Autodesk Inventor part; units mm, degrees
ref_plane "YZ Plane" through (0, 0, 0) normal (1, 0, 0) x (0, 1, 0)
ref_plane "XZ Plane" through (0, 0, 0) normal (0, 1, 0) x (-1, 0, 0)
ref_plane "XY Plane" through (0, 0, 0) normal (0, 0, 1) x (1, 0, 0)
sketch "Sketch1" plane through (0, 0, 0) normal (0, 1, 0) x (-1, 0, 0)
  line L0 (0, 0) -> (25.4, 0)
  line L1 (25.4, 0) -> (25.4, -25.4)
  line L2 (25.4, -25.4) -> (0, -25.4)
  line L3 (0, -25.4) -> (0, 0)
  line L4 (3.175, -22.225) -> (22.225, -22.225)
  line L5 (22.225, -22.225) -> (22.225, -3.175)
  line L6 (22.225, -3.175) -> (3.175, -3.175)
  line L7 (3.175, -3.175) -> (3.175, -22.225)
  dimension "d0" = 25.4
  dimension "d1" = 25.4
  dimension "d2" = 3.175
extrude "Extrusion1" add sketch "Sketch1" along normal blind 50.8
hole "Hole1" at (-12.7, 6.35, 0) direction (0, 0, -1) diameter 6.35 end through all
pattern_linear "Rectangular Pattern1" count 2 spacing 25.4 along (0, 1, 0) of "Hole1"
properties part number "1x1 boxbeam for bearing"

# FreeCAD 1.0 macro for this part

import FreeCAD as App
import Part
import Sketcher
from FreeCAD import Vector
Q = App.Units.Quantity


def add_polygon(sketch, points):
    """Adds a closed chain of lines whose ends are joined by coincident constraints."""
    first, n = sketch.GeometryCount, len(points)
    for a, b in zip(points, points[1:] + points[:1]):
        sketch.addGeometry(Part.LineSegment(App.Vector(*a, 0), App.Vector(*b, 0)), False)
    for i in range(n):
        sketch.addConstraint(Sketcher.Constraint("Coincident", first + i, 2, first + (i + 1) % n, 1))

doc = App.newDocument("Part")
body = doc.addObject("PartDesign::Body", "Body")

# Sketch on XZ plane
sketch1 = body.newObject("Sketcher::SketchObject", "Sketch")
sketch1.AttachmentSupport = (doc.getObject("XZ_Plane"), [""])
sketch1.MapMode = "FlatFace"
add_polygon(sketch1, [(-25, 0), (0, 0), (0, -25), (-25, -25)])  # lines 0-3
add_polygon(sketch1, [(-22, -22), (-3, -22), (-3, -3), (-22, -3)])  # lines 4-7
sketch1.addConstraint([
    Sketcher.Constraint("Horizontal", 0),
    Sketcher.Constraint("Vertical", 1),
    Sketcher.Constraint("Horizontal", 2),
    Sketcher.Constraint("Vertical", 3),
    Sketcher.Constraint("Horizontal", 4),
    Sketcher.Constraint("Vertical", 5),
    Sketcher.Constraint("Horizontal", 6),
    Sketcher.Constraint("Vertical", 7),
    Sketcher.Constraint("Coincident", 0, 2, -1, 1),
    Sketcher.Constraint("Equal", 2, 1),
    Sketcher.Constraint("Equal", 6, 5),
    Sketcher.Constraint("DistanceX", 0, 1, 0, 2, Q("1 in")),
    Sketcher.Constraint("DistanceX", 4, 2, -1, 1, Q("0.125 in")),
    Sketcher.Constraint("DistanceY", 5, 2, -1, 1, Q("0.125 in")),
    Sketcher.Constraint("DistanceY", 1, 2, 4, 2, Q("0.125 in")),
])
pad1 = body.newObject("PartDesign::Pad", "Pad")
pad1.Profile = sketch1
pad1.Length = Q("2 in")
pad1.Reversed = True

# Sketch on XY plane
sketch2 = body.newObject("Sketcher::SketchObject", "Sketch001")
sketch2.AttachmentSupport = (doc.getObject("XY_Plane"), [""])
sketch2.MapMode = "FlatFace"
sketch2.addGeometry(Part.Circle(Vector(-12.7, 6.3, 0), Vector(0, 0, 1), 3.2), False)
sketch2.addConstraint([
    Sketcher.Constraint("Diameter", 0, Q("0.25 in")),
    Sketcher.Constraint("DistanceX", 0, 3, -1, 1, Q("0.5 in")),
    Sketcher.Constraint("DistanceY", -1, 1, 0, 3, Q("0.25 in")),
])
doc.recompute()
hole = body.newObject("PartDesign::Hole", "Hole")
hole.Profile = sketch2
hole.ThreadType = "None"
hole.Diameter = Q("0.25 in")
hole.DepthType = "ThroughAll"
doc.recompute()

linearpattern = body.newObject("PartDesign::LinearPattern", "LinearPattern")
linearpattern.Originals = [hole]
linearpattern.Direction = (doc.getObject("Y_Axis"), [""])
linearpattern.Mode = "offset"
linearpattern.Offset = Q("1 in")
linearpattern.Occurrences = 2
body.Tip = linearpattern

doc.recompute()
